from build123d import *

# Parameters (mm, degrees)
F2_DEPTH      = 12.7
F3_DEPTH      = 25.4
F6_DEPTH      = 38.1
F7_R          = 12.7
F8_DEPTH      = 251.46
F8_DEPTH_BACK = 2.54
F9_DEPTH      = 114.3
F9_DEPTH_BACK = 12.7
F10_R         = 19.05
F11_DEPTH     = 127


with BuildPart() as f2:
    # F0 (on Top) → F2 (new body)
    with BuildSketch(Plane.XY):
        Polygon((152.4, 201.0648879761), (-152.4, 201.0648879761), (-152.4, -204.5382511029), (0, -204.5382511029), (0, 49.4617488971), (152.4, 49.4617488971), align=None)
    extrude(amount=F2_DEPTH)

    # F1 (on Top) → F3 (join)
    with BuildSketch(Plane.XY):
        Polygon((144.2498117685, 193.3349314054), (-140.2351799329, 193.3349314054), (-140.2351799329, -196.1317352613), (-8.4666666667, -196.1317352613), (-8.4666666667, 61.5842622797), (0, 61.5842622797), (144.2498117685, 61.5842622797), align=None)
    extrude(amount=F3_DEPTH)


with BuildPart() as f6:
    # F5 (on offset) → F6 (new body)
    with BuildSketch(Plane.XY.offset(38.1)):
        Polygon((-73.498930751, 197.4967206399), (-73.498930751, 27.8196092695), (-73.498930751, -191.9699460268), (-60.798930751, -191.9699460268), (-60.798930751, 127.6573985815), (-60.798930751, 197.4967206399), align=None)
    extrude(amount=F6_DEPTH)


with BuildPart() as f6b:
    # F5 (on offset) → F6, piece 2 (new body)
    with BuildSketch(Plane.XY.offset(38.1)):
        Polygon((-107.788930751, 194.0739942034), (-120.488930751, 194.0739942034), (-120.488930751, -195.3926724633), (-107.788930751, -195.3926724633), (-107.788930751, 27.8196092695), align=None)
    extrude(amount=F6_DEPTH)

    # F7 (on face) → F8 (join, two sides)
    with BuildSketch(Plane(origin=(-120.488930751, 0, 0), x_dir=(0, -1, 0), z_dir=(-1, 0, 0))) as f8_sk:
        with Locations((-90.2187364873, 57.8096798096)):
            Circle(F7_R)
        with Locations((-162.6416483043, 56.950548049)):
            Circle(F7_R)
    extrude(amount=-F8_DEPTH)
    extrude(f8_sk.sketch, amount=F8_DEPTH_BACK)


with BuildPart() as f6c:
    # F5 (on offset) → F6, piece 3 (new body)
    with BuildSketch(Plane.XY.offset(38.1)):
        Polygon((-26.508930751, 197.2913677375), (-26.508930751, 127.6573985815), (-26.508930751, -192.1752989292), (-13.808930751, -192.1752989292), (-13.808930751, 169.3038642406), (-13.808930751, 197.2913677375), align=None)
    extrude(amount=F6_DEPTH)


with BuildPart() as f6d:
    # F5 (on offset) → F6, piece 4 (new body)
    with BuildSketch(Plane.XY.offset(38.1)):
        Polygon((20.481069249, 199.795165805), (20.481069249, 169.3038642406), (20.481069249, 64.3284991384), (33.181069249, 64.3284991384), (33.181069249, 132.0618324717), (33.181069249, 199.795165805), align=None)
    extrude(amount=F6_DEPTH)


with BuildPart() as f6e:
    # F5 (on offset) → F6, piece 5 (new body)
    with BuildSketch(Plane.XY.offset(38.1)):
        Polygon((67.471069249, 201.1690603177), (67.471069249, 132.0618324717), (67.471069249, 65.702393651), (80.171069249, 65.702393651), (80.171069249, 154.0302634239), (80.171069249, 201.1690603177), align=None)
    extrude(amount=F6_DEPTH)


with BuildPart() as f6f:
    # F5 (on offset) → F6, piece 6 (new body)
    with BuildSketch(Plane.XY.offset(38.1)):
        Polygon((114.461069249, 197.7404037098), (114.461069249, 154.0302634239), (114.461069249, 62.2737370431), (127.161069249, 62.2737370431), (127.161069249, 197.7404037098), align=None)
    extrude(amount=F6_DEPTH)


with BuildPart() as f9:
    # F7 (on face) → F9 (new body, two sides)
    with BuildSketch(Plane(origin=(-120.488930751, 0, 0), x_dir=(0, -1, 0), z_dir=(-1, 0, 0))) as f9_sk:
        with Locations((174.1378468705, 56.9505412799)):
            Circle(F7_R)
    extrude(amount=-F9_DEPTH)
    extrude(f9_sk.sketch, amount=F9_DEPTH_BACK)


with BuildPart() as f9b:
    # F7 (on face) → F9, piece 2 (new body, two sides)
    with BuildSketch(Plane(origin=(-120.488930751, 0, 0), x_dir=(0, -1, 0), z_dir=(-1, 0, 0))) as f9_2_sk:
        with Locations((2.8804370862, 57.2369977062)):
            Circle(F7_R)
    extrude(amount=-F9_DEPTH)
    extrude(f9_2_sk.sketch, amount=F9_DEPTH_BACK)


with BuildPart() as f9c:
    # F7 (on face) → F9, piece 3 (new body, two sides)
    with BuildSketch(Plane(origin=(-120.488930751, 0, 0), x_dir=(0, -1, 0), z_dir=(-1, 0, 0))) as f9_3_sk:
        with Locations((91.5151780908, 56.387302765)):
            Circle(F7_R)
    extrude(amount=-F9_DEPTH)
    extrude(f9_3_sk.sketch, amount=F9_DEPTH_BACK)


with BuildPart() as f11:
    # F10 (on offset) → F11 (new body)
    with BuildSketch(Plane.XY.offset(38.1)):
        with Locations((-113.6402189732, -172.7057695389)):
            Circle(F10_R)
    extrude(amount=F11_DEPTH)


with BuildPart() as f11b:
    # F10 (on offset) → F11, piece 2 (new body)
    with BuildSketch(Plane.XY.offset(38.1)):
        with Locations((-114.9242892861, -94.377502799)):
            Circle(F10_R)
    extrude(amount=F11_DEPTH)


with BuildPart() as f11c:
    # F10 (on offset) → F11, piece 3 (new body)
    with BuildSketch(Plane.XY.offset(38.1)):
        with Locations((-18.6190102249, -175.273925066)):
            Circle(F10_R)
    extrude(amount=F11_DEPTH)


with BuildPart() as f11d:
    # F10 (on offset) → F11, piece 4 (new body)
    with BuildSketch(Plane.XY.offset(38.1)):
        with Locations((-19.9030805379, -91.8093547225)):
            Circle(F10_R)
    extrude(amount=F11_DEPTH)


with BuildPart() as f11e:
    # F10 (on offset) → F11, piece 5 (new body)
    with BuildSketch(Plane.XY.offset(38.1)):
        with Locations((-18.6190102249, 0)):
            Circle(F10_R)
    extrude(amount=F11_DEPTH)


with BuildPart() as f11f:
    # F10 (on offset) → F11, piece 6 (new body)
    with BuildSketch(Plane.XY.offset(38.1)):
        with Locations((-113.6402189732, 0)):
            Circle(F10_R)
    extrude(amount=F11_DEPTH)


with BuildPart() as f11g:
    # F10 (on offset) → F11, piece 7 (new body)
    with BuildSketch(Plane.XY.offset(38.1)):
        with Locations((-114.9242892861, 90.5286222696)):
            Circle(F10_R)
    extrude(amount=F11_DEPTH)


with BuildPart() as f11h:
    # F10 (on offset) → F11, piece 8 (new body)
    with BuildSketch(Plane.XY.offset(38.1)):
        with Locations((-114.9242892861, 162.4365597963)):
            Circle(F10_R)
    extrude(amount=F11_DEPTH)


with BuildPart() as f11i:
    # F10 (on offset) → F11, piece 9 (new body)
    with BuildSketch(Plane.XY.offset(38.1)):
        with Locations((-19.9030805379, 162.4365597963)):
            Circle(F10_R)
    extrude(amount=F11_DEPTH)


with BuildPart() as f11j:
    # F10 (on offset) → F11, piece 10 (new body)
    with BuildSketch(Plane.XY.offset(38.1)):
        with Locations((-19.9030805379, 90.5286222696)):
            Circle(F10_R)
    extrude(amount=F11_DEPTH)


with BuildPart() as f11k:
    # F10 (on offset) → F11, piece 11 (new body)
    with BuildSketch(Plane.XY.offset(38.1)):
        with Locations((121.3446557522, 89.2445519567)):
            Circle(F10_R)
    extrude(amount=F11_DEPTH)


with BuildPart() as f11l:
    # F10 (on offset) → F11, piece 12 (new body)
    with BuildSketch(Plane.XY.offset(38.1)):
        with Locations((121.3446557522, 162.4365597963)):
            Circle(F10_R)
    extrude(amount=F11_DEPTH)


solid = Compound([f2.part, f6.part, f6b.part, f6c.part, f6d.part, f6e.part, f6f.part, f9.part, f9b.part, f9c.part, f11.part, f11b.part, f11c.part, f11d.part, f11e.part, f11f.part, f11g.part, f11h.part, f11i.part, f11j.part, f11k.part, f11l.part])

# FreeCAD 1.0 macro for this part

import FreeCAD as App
import Part
import Sketcher
Q = App.Units.Quantity


def add_polygon(sketch, points):
    """Adds a closed chain of lines whose ends are joined by coincident constraints."""
    first, n = sketch.GeometryCount, len(points)
    for a, b in zip(points, points[1:] + points[:1]):
        sketch.addGeometry(Part.LineSegment(App.Vector(*a, 0), App.Vector(*b, 0)), False)
    for i in range(n):
        sketch.addConstraint(Sketcher.Constraint("Coincident", first + i, 2, first + (i + 1) % n, 1))

doc = App.newDocument("Part")
body = doc.addObject("PartDesign::Body", "Body")

# Sketch on XY plane
sketch1 = body.newObject("Sketcher::SketchObject", "Sketch")
sketch1.AttachmentSupport = (doc.getObject("XY_Plane"), [""])
sketch1.MapMode = "FlatFace"
add_polygon(sketch1, [(152, 201), (-152, 201), (-152, -205), (0, -205), (0, 49), (152, 49)])  # lines 0-5
sketch1.addConstraint([
    Sketcher.Constraint("Horizontal", 0),
    Sketcher.Constraint("Vertical", 1),
    Sketcher.Constraint("Horizontal", 2),
    Sketcher.Constraint("Vertical", 3),
    Sketcher.Constraint("Horizontal", 4),
    Sketcher.Constraint("Vertical", 5),
    Sketcher.Constraint("PointOnObject", 2, 2, -2),
    Sketcher.Constraint("Equal", 2, 4),
    Sketcher.Constraint("DistanceX", 0, 2, 0, 1, Q("12 in")),
    Sketcher.Constraint("DistanceY", 3, 1, 3, 2, Q("10 in")),
    Sketcher.Constraint("DistanceY", 1, 2, 1, 1, Q("405.603139 mm")),
    Sketcher.Constraint("DistanceY", 1, 2, -1, 1, Q("204.538251 mm")),
])
pad1 = body.newObject("PartDesign::Pad", "Pad")
pad1.Profile = sketch1
pad1.Length = Q("0.5 in")

# Sketch on XY plane
sketch2 = body.newObject("Sketcher::SketchObject", "Sketch001")
sketch2.AttachmentSupport = (doc.getObject("XY_Plane"), [""])
sketch2.MapMode = "FlatFace"
add_polygon(sketch2, [(144, 193), (-140, 193), (-140, -196), (-8, -196), (-8, 62), (144, 62)])  # lines 0-5
sketch2.addConstraint([
    Sketcher.Constraint("Horizontal", 0),
    Sketcher.Constraint("Vertical", 1),
    Sketcher.Constraint("Horizontal", 2),
    Sketcher.Constraint("Vertical", 3),
    Sketcher.Constraint("Horizontal", 4),
    Sketcher.Constraint("Vertical", 5),
    Sketcher.Constraint("DistanceX", 0, 2, 0, 1, Q("284.484992 mm")),
    Sketcher.Constraint("DistanceX", 4, 1, 4, 2, Q("152.716478 mm")),
    Sketcher.Constraint("DistanceY", 5, 1, 5, 2, Q("131.750669 mm")),
    Sketcher.Constraint("DistanceY", 1, 2, 1, 1, Q("389.466667 mm")),
    Sketcher.Constraint("DistanceX", 0, 2, -1, 1, Q("140.23518 mm")),
    Sketcher.Constraint("DistanceY", -1, 1, 0, 2, Q("193.334931 mm")),
])
pad2 = body.newObject("PartDesign::Pad", "Pad001")
pad2.Profile = sketch2
pad2.Length = Q("1 in")
body2 = doc.addObject("PartDesign::Body", "Body001")

# Sketch on XY plane
sketch3 = body2.newObject("Sketcher::SketchObject", "Sketch002")
sketch3.AttachmentSupport = (doc.getObject("XY_Plane001"), [""])
sketch3.MapMode = "FlatFace"
sketch3.AttachmentOffset = App.Placement(App.Vector(0, 0, 1.5 * 25.4), App.Rotation())
add_polygon(sketch3, [(-73, 197), (-73, -192), (-61, -192), (-61, 197)])  # lines 0-3
sketch3.addConstraint([
    Sketcher.Constraint("Vertical", 0),
    Sketcher.Constraint("Horizontal", 1),
    Sketcher.Constraint("Vertical", 2),
    Sketcher.Constraint("Horizontal", 3),
    Sketcher.Constraint("DistanceX", 1, 1, 1, 2, Q("0.5 in")),
    Sketcher.Constraint("DistanceY", 0, 2, 0, 1, Q("389.466667 mm")),
    Sketcher.Constraint("DistanceX", 0, 2, -1, 1, Q("73.498931 mm")),
    Sketcher.Constraint("DistanceY", -1, 1, 2, 2, Q("197.496721 mm")),
])
pad3 = body2.newObject("PartDesign::Pad", "Pad002")
pad3.Profile = sketch3
pad3.Length = Q("1.5 in")
body3 = doc.addObject("PartDesign::Body", "Body002")

# Sketch on XY plane
sketch4 = body3.newObject("Sketcher::SketchObject", "Sketch003")
sketch4.AttachmentSupport = (doc.getObject("XY_Plane002"), [""])
sketch4.MapMode = "FlatFace"
sketch4.AttachmentOffset = App.Placement(App.Vector(0, 0, 1.5 * 25.4), App.Rotation())
add_polygon(sketch4, [(-108, 194), (-120, 194), (-120, -195), (-108, -195)])  # lines 0-3
sketch4.addConstraint([
    Sketcher.Constraint("Horizontal", 0),
    Sketcher.Constraint("Vertical", 1),
    Sketcher.Constraint("Horizontal", 2),
    Sketcher.Constraint("Vertical", 3),
    Sketcher.Constraint("DistanceX", 0, 2, 0, 1, Q("0.5 in")),
    Sketcher.Constraint("DistanceY", 1, 2, 1, 1, Q("389.466667 mm")),
    Sketcher.Constraint("DistanceX", 0, 2, -1, 1, Q("120.488931 mm")),
    Sketcher.Constraint("DistanceY", -1, 1, 0, 2, Q("194.073994 mm")),
])
pad4 = body3.newObject("PartDesign::Pad", "Pad003")
pad4.Profile = sketch4
pad4.Length = Q("1.5 in")

# Sketch on YZ plane
sketch5 = body3.newObject("Sketcher::SketchObject", "Sketch004")
sketch5.AttachmentSupport = (doc.getObject("YZ_Plane002"), [""])
sketch5.MapMode = "FlatFace"
sketch5.AttachmentOffset = App.Placement(App.Vector(0, 0, -120.488931), App.Rotation())
sketch5.addGeometry([
    Part.Circle(App.Vector(90, 58, 0), App.Vector(0, 0, 1), 13),
    Part.Circle(App.Vector(163, 57, 0), App.Vector(0, 0, 1), 13),
], False)
sketch5.addConstraint([
    Sketcher.Constraint("Equal", 0, 1),
    Sketcher.Constraint("Diameter", 0, Q("1 in")),
    Sketcher.Constraint("DistanceY", -1, 1, 0, 3, Q("57.80968 mm")),
    Sketcher.Constraint("DistanceX", -1, 1, 1, 3, Q("162.641648 mm")),
    Sketcher.Constraint("DistanceY", -1, 1, 1, 3, Q("56.950548 mm")),
    Sketcher.Constraint("DistanceX", 0, 3, 1, 3, Q("72.422912 mm")),
])
pad5 = body3.newObject("PartDesign::Pad", "Pad004")
pad5.Profile = sketch5
pad5.Type = "TwoLengths"
pad5.Length = Q("9.9 in")
pad5.Length2 = Q("0.1 in")
body4 = doc.addObject("PartDesign::Body", "Body003")

# Sketch on XY plane
sketch6 = body4.newObject("Sketcher::SketchObject", "Sketch005")
sketch6.AttachmentSupport = (doc.getObject("XY_Plane003"), [""])
sketch6.MapMode = "FlatFace"
sketch6.AttachmentOffset = App.Placement(App.Vector(0, 0, 1.5 * 25.4), App.Rotation())
add_polygon(sketch6, [(-27, 197), (-27, -192), (-14, -192), (-14, 197)])  # lines 0-3
sketch6.addConstraint([
    Sketcher.Constraint("Vertical", 0),
    Sketcher.Constraint("Horizontal", 1),
    Sketcher.Constraint("Vertical", 2),
    Sketcher.Constraint("Horizontal", 3),
    Sketcher.Constraint("DistanceX", 1, 1, 1, 2, Q("0.5 in")),
    Sketcher.Constraint("DistanceY", 0, 2, -1, 1, Q("192.175299 mm")),
    Sketcher.Constraint("DistanceY", 0, 2, 0, 1, Q("389.466667 mm")),
    Sketcher.Constraint("DistanceX", 0, 2, -1, 1, Q("26.508931 mm")),
])
pad6 = body4.newObject("PartDesign::Pad", "Pad005")
pad6.Profile = sketch6
pad6.Length = Q("1.5 in")
body5 = doc.addObject("PartDesign::Body", "Body004")

# Sketch on XY plane
sketch7 = body5.newObject("Sketcher::SketchObject", "Sketch006")
sketch7.AttachmentSupport = (doc.getObject("XY_Plane004"), [""])
sketch7.MapMode = "FlatFace"
sketch7.AttachmentOffset = App.Placement(App.Vector(0, 0, 1.5 * 25.4), App.Rotation())
add_polygon(sketch7, [(20, 200), (20, 64), (33, 64), (33, 200)])  # lines 0-3
sketch7.addConstraint([
    Sketcher.Constraint("Vertical", 0),
    Sketcher.Constraint("Horizontal", 1),
    Sketcher.Constraint("Vertical", 2),
    Sketcher.Constraint("Horizontal", 3),
    Sketcher.Constraint("DistanceX", 1, 1, 1, 2, Q("0.5 in")),
    Sketcher.Constraint("DistanceY", -1, 1, 0, 2, Q("64.328499 mm")),
    Sketcher.Constraint("DistanceY", 0, 2, 0, 1, Q("135.466667 mm")),
    Sketcher.Constraint("DistanceX", -1, 1, 0, 2, Q("20.481069 mm")),
])
pad7 = body5.newObject("PartDesign::Pad", "Pad006")
pad7.Profile = sketch7
pad7.Length = Q("1.5 in")
body6 = doc.addObject("PartDesign::Body", "Body005")

# Sketch on XY plane
sketch8 = body6.newObject("Sketcher::SketchObject", "Sketch007")
sketch8.AttachmentSupport = (doc.getObject("XY_Plane005"), [""])
sketch8.MapMode = "FlatFace"
sketch8.AttachmentOffset = App.Placement(App.Vector(0, 0, 1.5 * 25.4), App.Rotation())
add_polygon(sketch8, [(67, 201), (67, 66), (80, 66), (80, 201)])  # lines 0-3
sketch8.addConstraint([
    Sketcher.Constraint("Vertical", 0),
    Sketcher.Constraint("Horizontal", 1),
    Sketcher.Constraint("Vertical", 2),
    Sketcher.Constraint("Horizontal", 3),
    Sketcher.Constraint("DistanceX", 1, 1, 1, 2, Q("0.5 in")),
    Sketcher.Constraint("DistanceY", 0, 2, 0, 1, Q("135.466667 mm")),
    Sketcher.Constraint("DistanceX", -1, 1, 0, 2, Q("67.471069 mm")),
    Sketcher.Constraint("DistanceY", -1, 1, 2, 2, Q("201.16906 mm")),
])
pad8 = body6.newObject("PartDesign::Pad", "Pad007")
pad8.Profile = sketch8
pad8.Length = Q("1.5 in")
body7 = doc.addObject("PartDesign::Body", "Body006")

# Sketch on XY plane
sketch9 = body7.newObject("Sketcher::SketchObject", "Sketch008")
sketch9.AttachmentSupport = (doc.getObject("XY_Plane006"), [""])
sketch9.MapMode = "FlatFace"
sketch9.AttachmentOffset = App.Placement(App.Vector(0, 0, 1.5 * 25.4), App.Rotation())
add_polygon(sketch9, [(114, 198), (114, 62), (127, 62), (127, 198)])  # lines 0-3
sketch9.addConstraint([
    Sketcher.Constraint("Vertical", 0),
    Sketcher.Constraint("Horizontal", 1),
    Sketcher.Constraint("Vertical", 2),
    Sketcher.Constraint("Horizontal", 3),
    Sketcher.Constraint("DistanceX", 1, 1, 1, 2, Q("0.5 in")),
    Sketcher.Constraint("DistanceY", 0, 2, 0, 1, Q("135.466667 mm")),
    Sketcher.Constraint("DistanceX", -1, 1, 0, 2, Q("114.461069 mm")),
    Sketcher.Constraint("DistanceY", -1, 1, 0, 2, Q("62.273737 mm")),
])
pad9 = body7.newObject("PartDesign::Pad", "Pad008")
pad9.Profile = sketch9
pad9.Length = Q("1.5 in")
body8 = doc.addObject("PartDesign::Body", "Body007")

# Sketch on YZ plane
sketch10 = body8.newObject("Sketcher::SketchObject", "Sketch009")
sketch10.AttachmentSupport = (doc.getObject("YZ_Plane007"), [""])
sketch10.MapMode = "FlatFace"
sketch10.AttachmentOffset = App.Placement(App.Vector(0, 0, -120.488931), App.Rotation())
sketch10.addGeometry(Part.Circle(App.Vector(-174, 57, 0), App.Vector(0, 0, 1), 13), False)
sketch10.addConstraint([
    Sketcher.Constraint("Diameter", 0, Q("1 in")),
    Sketcher.Constraint("DistanceY", -1, 1, 0, 3, Q("56.950541 mm")),
    Sketcher.Constraint("DistanceX", 0, 3, -1, 1, Q("174.137847 mm")),
])
pad10 = body8.newObject("PartDesign::Pad", "Pad009")
pad10.Profile = sketch10
pad10.Type = "TwoLengths"
pad10.Length = Q("4.5 in")
pad10.Length2 = Q("0.5 in")
body9 = doc.addObject("PartDesign::Body", "Body008")

# Sketch on YZ plane
sketch11 = body9.newObject("Sketcher::SketchObject", "Sketch010")
sketch11.AttachmentSupport = (doc.getObject("YZ_Plane008"), [""])
sketch11.MapMode = "FlatFace"
sketch11.AttachmentOffset = App.Placement(App.Vector(0, 0, -120.488931), App.Rotation())
sketch11.addGeometry(Part.Circle(App.Vector(-3, 57, 0), App.Vector(0, 0, 1), 13), False)
sketch11.addConstraint([
    Sketcher.Constraint("Diameter", 0, Q("1 in")),
    Sketcher.Constraint("DistanceX", 0, 3, -1, 1, Q("2.880437 mm")),
    Sketcher.Constraint("DistanceY", -1, 1, 0, 3, Q("57.236998 mm")),
])
pad11 = body9.newObject("PartDesign::Pad", "Pad010")
pad11.Profile = sketch11
pad11.Type = "TwoLengths"
pad11.Length = Q("4.5 in")
pad11.Length2 = Q("0.5 in")
body10 = doc.addObject("PartDesign::Body", "Body009")

# Sketch on YZ plane
sketch12 = body10.newObject("Sketcher::SketchObject", "Sketch011")
sketch12.AttachmentSupport = (doc.getObject("YZ_Plane009"), [""])
sketch12.MapMode = "FlatFace"
sketch12.AttachmentOffset = App.Placement(App.Vector(0, 0, -120.488931), App.Rotation())
sketch12.addGeometry(Part.Circle(App.Vector(-92, 56, 0), App.Vector(0, 0, 1), 13), False)
sketch12.addConstraint([
    Sketcher.Constraint("Diameter", 0, Q("1 in")),
    Sketcher.Constraint("DistanceX", 0, 3, -1, 1, Q("91.515178 mm")),
    Sketcher.Constraint("DistanceY", -1, 1, 0, 3, Q("56.387303 mm")),
])
pad12 = body10.newObject("PartDesign::Pad", "Pad011")
pad12.Profile = sketch12
pad12.Type = "TwoLengths"
pad12.Length = Q("4.5 in")
pad12.Length2 = Q("0.5 in")
body11 = doc.addObject("PartDesign::Body", "Body010")

# Sketch on XY plane
sketch13 = body11.newObject("Sketcher::SketchObject", "Sketch012")
sketch13.AttachmentSupport = (doc.getObject("XY_Plane010"), [""])
sketch13.MapMode = "FlatFace"
sketch13.AttachmentOffset = App.Placement(App.Vector(0, 0, 1.5 * 25.4), App.Rotation())
sketch13.addGeometry(Part.Circle(App.Vector(-114, -173, 0), App.Vector(0, 0, 1), 19), False)
sketch13.addConstraint([
    Sketcher.Constraint("Diameter", 0, Q("1.5 in")),
    Sketcher.Constraint("DistanceX", 0, 3, -1, 1, Q("113.640219 mm")),
    Sketcher.Constraint("DistanceY", 0, 3, -1, 1, Q("172.70577 mm")),
])
pad13 = body11.newObject("PartDesign::Pad", "Pad012")
pad13.Profile = sketch13
pad13.Length = Q("5 in")
body12 = doc.addObject("PartDesign::Body", "Body011")

# Sketch on XY plane
sketch14 = body12.newObject("Sketcher::SketchObject", "Sketch013")
sketch14.AttachmentSupport = (doc.getObject("XY_Plane011"), [""])
sketch14.MapMode = "FlatFace"
sketch14.AttachmentOffset = App.Placement(App.Vector(0, 0, 1.5 * 25.4), App.Rotation())
sketch14.addGeometry(Part.Circle(App.Vector(-115, -94, 0), App.Vector(0, 0, 1), 19), False)
sketch14.addConstraint([
    Sketcher.Constraint("Diameter", 0, Q("1.5 in")),
    Sketcher.Constraint("DistanceX", 0, 3, -1, 1, Q("114.924289 mm")),
    Sketcher.Constraint("DistanceY", 0, 3, -1, 1, Q("94.377503 mm")),
])
pad14 = body12.newObject("PartDesign::Pad", "Pad013")
pad14.Profile = sketch14
pad14.Length = Q("5 in")
body13 = doc.addObject("PartDesign::Body", "Body012")

# Sketch on XY plane
sketch15 = body13.newObject("Sketcher::SketchObject", "Sketch014")
sketch15.AttachmentSupport = (doc.getObject("XY_Plane012"), [""])
sketch15.MapMode = "FlatFace"
sketch15.AttachmentOffset = App.Placement(App.Vector(0, 0, 1.5 * 25.4), App.Rotation())
sketch15.addGeometry(Part.Circle(App.Vector(-19, -175, 0), App.Vector(0, 0, 1), 19), False)
sketch15.addConstraint([
    Sketcher.Constraint("Diameter", 0, Q("1.5 in")),
    Sketcher.Constraint("DistanceX", 0, 3, -1, 1, Q("18.61901 mm")),
    Sketcher.Constraint("DistanceY", 0, 3, -1, 1, Q("175.273925 mm")),
])
pad15 = body13.newObject("PartDesign::Pad", "Pad014")
pad15.Profile = sketch15
pad15.Length = Q("5 in")
body14 = doc.addObject("PartDesign::Body", "Body013")

# Sketch on XY plane
sketch16 = body14.newObject("Sketcher::SketchObject", "Sketch015")
sketch16.AttachmentSupport = (doc.getObject("XY_Plane013"), [""])
sketch16.MapMode = "FlatFace"
sketch16.AttachmentOffset = App.Placement(App.Vector(0, 0, 1.5 * 25.4), App.Rotation())
sketch16.addGeometry(Part.Circle(App.Vector(-20, -92, 0), App.Vector(0, 0, 1), 19), False)
sketch16.addConstraint([
    Sketcher.Constraint("Diameter", 0, Q("1.5 in")),
    Sketcher.Constraint("DistanceX", 0, 3, -1, 1, Q("19.903081 mm")),
    Sketcher.Constraint("DistanceY", 0, 3, -1, 1, Q("91.809355 mm")),
])
pad16 = body14.newObject("PartDesign::Pad", "Pad015")
pad16.Profile = sketch16
pad16.Length = Q("5 in")
body15 = doc.addObject("PartDesign::Body", "Body014")

# Sketch on XY plane
sketch17 = body15.newObject("Sketcher::SketchObject", "Sketch016")
sketch17.AttachmentSupport = (doc.getObject("XY_Plane014"), [""])
sketch17.MapMode = "FlatFace"
sketch17.AttachmentOffset = App.Placement(App.Vector(0, 0, 1.5 * 25.4), App.Rotation())
sketch17.addGeometry(Part.Circle(App.Vector(-19, 0, 0), App.Vector(0, 0, 1), 19), False)
sketch17.addConstraint([
    Sketcher.Constraint("PointOnObject", 0, 3, -1),
    Sketcher.Constraint("Diameter", 0, Q("1.5 in")),
    Sketcher.Constraint("DistanceX", 0, 3, -1, 1, Q("18.61901 mm")),
])
pad17 = body15.newObject("PartDesign::Pad", "Pad016")
pad17.Profile = sketch17
pad17.Length = Q("5 in")
body16 = doc.addObject("PartDesign::Body", "Body015")

# Sketch on XY plane
sketch18 = body16.newObject("Sketcher::SketchObject", "Sketch017")
sketch18.AttachmentSupport = (doc.getObject("XY_Plane015"), [""])
sketch18.MapMode = "FlatFace"
sketch18.AttachmentOffset = App.Placement(App.Vector(0, 0, 1.5 * 25.4), App.Rotation())
sketch18.addGeometry(Part.Circle(App.Vector(-114, 0, 0), App.Vector(0, 0, 1), 19), False)
sketch18.addConstraint([
    Sketcher.Constraint("PointOnObject", 0, 3, -1),
    Sketcher.Constraint("Diameter", 0, Q("1.5 in")),
    Sketcher.Constraint("DistanceX", 0, 3, -1, 1, Q("113.640219 mm")),
])
pad18 = body16.newObject("PartDesign::Pad", "Pad017")
pad18.Profile = sketch18
pad18.Length = Q("5 in")
body17 = doc.addObject("PartDesign::Body", "Body016")

# Sketch on XY plane
sketch19 = body17.newObject("Sketcher::SketchObject", "Sketch018")
sketch19.AttachmentSupport = (doc.getObject("XY_Plane016"), [""])
sketch19.MapMode = "FlatFace"
sketch19.AttachmentOffset = App.Placement(App.Vector(0, 0, 1.5 * 25.4), App.Rotation())
sketch19.addGeometry(Part.Circle(App.Vector(-115, 91, 0), App.Vector(0, 0, 1), 19), False)
sketch19.addConstraint([
    Sketcher.Constraint("Diameter", 0, Q("1.5 in")),
    Sketcher.Constraint("DistanceX", 0, 3, -1, 1, Q("114.924289 mm")),
    Sketcher.Constraint("DistanceY", -1, 1, 0, 3, Q("90.528622 mm")),
])
pad19 = body17.newObject("PartDesign::Pad", "Pad018")
pad19.Profile = sketch19
pad19.Length = Q("5 in")
body18 = doc.addObject("PartDesign::Body", "Body017")

# Sketch on XY plane
sketch20 = body18.newObject("Sketcher::SketchObject", "Sketch019")
sketch20.AttachmentSupport = (doc.getObject("XY_Plane017"), [""])
sketch20.MapMode = "FlatFace"
sketch20.AttachmentOffset = App.Placement(App.Vector(0, 0, 1.5 * 25.4), App.Rotation())
sketch20.addGeometry(Part.Circle(App.Vector(-115, 162, 0), App.Vector(0, 0, 1), 19), False)
sketch20.addConstraint([
    Sketcher.Constraint("Diameter", 0, Q("1.5 in")),
    Sketcher.Constraint("DistanceX", 0, 3, -1, 1, Q("114.924289 mm")),
    Sketcher.Constraint("DistanceY", -1, 1, 0, 3, Q("162.43656 mm")),
])
pad20 = body18.newObject("PartDesign::Pad", "Pad019")
pad20.Profile = sketch20
pad20.Length = Q("5 in")
body19 = doc.addObject("PartDesign::Body", "Body018")

# Sketch on XY plane
sketch21 = body19.newObject("Sketcher::SketchObject", "Sketch020")
sketch21.AttachmentSupport = (doc.getObject("XY_Plane018"), [""])
sketch21.MapMode = "FlatFace"
sketch21.AttachmentOffset = App.Placement(App.Vector(0, 0, 1.5 * 25.4), App.Rotation())
sketch21.addGeometry(Part.Circle(App.Vector(-20, 162, 0), App.Vector(0, 0, 1), 19), False)
sketch21.addConstraint([
    Sketcher.Constraint("Diameter", 0, Q("1.5 in")),
    Sketcher.Constraint("DistanceX", 0, 3, -1, 1, Q("19.903081 mm")),
    Sketcher.Constraint("DistanceY", -1, 1, 0, 3, Q("162.43656 mm")),
])
pad21 = body19.newObject("PartDesign::Pad", "Pad020")
pad21.Profile = sketch21
pad21.Length = Q("5 in")
body20 = doc.addObject("PartDesign::Body", "Body019")

# Sketch on XY plane
sketch22 = body20.newObject("Sketcher::SketchObject", "Sketch021")
sketch22.AttachmentSupport = (doc.getObject("XY_Plane019"), [""])
sketch22.MapMode = "FlatFace"
sketch22.AttachmentOffset = App.Placement(App.Vector(0, 0, 1.5 * 25.4), App.Rotation())
sketch22.addGeometry(Part.Circle(App.Vector(-20, 91, 0), App.Vector(0, 0, 1), 19), False)
sketch22.addConstraint([
    Sketcher.Constraint("Diameter", 0, Q("1.5 in")),
    Sketcher.Constraint("DistanceX", 0, 3, -1, 1, Q("19.903081 mm")),
    Sketcher.Constraint("DistanceY", -1, 1, 0, 3, Q("90.528622 mm")),
])
pad22 = body20.newObject("PartDesign::Pad", "Pad021")
pad22.Profile = sketch22
pad22.Length = Q("5 in")
body21 = doc.addObject("PartDesign::Body", "Body020")

# Sketch on XY plane
sketch23 = body21.newObject("Sketcher::SketchObject", "Sketch022")
sketch23.AttachmentSupport = (doc.getObject("XY_Plane020"), [""])
sketch23.MapMode = "FlatFace"
sketch23.AttachmentOffset = App.Placement(App.Vector(0, 0, 1.5 * 25.4), App.Rotation())
sketch23.addGeometry(Part.Circle(App.Vector(121, 89, 0), App.Vector(0, 0, 1), 19), False)
sketch23.addConstraint([
    Sketcher.Constraint("Diameter", 0, Q("1.5 in")),
    Sketcher.Constraint("DistanceY", -1, 1, 0, 3, Q("89.244552 mm")),
    Sketcher.Constraint("DistanceX", -1, 1, 0, 3, Q("121.344656 mm")),
])
pad23 = body21.newObject("PartDesign::Pad", "Pad022")
pad23.Profile = sketch23
pad23.Length = Q("5 in")
body22 = doc.addObject("PartDesign::Body", "Body021")

# Sketch on XY plane
sketch24 = body22.newObject("Sketcher::SketchObject", "Sketch023")
sketch24.AttachmentSupport = (doc.getObject("XY_Plane021"), [""])
sketch24.MapMode = "FlatFace"
sketch24.AttachmentOffset = App.Placement(App.Vector(0, 0, 1.5 * 25.4), App.Rotation())
sketch24.addGeometry(Part.Circle(App.Vector(121, 162, 0), App.Vector(0, 0, 1), 19), False)
sketch24.addConstraint([
    Sketcher.Constraint("Diameter", 0, Q("1.5 in")),
    Sketcher.Constraint("DistanceY", -1, 1, 0, 3, Q("162.43656 mm")),
    Sketcher.Constraint("DistanceX", -1, 1, 0, 3, Q("121.344656 mm")),
])
pad24 = body22.newObject("PartDesign::Pad", "Pad023")
pad24.Profile = sketch24
pad24.Length = Q("5 in")

doc.recompute()
